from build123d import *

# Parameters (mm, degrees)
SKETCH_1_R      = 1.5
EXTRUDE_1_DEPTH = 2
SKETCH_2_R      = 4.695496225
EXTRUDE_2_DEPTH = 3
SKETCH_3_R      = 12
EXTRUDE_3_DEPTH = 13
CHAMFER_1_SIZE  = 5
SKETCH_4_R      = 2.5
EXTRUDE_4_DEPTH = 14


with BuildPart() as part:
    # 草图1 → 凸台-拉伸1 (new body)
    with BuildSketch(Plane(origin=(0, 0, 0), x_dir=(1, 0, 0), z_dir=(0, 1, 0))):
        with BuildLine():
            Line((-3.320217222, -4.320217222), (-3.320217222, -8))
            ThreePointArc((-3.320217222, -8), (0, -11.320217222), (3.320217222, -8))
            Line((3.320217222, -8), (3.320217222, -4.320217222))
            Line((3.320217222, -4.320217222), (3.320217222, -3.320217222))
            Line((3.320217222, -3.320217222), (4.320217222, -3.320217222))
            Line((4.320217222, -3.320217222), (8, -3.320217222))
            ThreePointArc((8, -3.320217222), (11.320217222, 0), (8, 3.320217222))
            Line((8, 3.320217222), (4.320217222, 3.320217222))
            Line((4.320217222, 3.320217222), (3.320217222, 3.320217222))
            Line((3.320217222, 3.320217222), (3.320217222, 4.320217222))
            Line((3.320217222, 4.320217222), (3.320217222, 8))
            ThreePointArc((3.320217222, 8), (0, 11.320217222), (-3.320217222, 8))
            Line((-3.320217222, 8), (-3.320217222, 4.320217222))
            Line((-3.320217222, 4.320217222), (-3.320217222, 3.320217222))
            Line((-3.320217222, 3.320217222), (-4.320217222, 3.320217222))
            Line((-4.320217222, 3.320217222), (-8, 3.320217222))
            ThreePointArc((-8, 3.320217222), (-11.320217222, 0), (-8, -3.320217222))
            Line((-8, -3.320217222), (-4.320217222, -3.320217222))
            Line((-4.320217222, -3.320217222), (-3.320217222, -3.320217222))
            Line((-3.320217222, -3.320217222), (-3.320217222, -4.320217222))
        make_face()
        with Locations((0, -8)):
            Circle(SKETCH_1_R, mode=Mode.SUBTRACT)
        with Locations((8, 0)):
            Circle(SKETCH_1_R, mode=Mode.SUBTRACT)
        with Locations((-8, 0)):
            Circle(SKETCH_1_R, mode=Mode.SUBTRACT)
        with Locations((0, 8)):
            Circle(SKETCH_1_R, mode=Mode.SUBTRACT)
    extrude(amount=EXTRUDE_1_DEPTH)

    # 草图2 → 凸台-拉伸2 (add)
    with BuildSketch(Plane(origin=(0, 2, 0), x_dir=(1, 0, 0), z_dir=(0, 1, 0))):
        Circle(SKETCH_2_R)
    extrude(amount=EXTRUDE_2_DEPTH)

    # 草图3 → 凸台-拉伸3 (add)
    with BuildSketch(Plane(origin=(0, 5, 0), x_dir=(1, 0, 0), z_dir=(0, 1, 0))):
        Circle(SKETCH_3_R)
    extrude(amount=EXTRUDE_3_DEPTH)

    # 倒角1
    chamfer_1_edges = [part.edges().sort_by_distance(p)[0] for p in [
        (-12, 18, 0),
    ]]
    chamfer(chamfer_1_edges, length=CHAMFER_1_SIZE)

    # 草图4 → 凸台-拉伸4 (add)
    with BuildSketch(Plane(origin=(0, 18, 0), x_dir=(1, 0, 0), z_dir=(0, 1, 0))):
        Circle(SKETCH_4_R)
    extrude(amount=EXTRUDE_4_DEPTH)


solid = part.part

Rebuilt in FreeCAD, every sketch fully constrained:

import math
import FreeCAD as App
import Part
import Sketcher

V = App.Vector
Q = App.Units.Quantity


def edges_at(feature, points):
    """Names of the edges that pass closest to the given points."""
    edges = feature.Shape.Edges
    near = lambda p: min(range(len(edges)), key=lambda i: edges[i].distToShape(Part.Vertex(*p))[0])
    return sorted({f"Edge{near(p) + 1}" for p in points})

doc = App.newDocument("Part")
params = doc.addObject("Spreadsheet::Sheet", "Params")
for row, (alias, value) in enumerate([
    ("sketch1_diameter", "3 mm"),
    ("pad1_length", "2 mm"),
    ("pad2_length", "3 mm"),
    ("sketch3_diameter", "24 mm"),
    ("pad3_length", "13 mm"),
    ("chamfer_size", "5 mm"),
    ("sketch4_diameter", "5 mm"),
    ("pad4_length", "14 mm"),
], start=1):
    params.set(f"A{row}", alias)
    params.set(f"B{row}", "=" + value)
    params.setAlias(f"B{row}", alias)

body = doc.addObject("PartDesign::Body", "Body")

# Sketch on XZ plane
sketch1 = body.newObject("Sketcher::SketchObject", "Sketch")
sketch1.AttachmentSupport = (doc.getObject("XZ_Plane"), [""])
sketch1.MapMode = "FlatFace"
sketch1.addGeometry(Part.ArcOfCircle(Part.Circle(V(0, 8, 0), V(0, 0, 1), 3.3), math.radians(0), math.radians(180)), False)
sketch1.addGeometry(Part.LineSegment(V(3.3, 8, 0), V(3.3, 3.3, 0)), False)
sketch1.addGeometry(Part.LineSegment(V(3.3, 3.3, 0), V(8, 3.3, 0)), False)
sketch1.addGeometry(Part.ArcOfCircle(Part.Circle(V(8, 0, 0), V(0, 0, 1), 3.3), math.radians(-90), math.radians(90)), False)
sketch1.addGeometry(Part.LineSegment(V(8, -3.3, 0), V(3.3, -3.3, 0)), False)
sketch1.addGeometry(Part.LineSegment(V(3.3, -3.3, 0), V(3.3, -8, 0)), False)
sketch1.addGeometry(Part.ArcOfCircle(Part.Circle(V(0, -8, 0), V(0, 0, 1), 3.3), math.radians(180), math.radians(360)), False)
sketch1.addGeometry(Part.LineSegment(V(-3.3, -8, 0), V(-3.3, -3.3, 0)), False)
sketch1.addGeometry(Part.LineSegment(V(-3.3, -3.3, 0), V(-8, -3.3, 0)), False)
sketch1.addGeometry(Part.ArcOfCircle(Part.Circle(V(-8, 0, 0), V(0, 0, 1), 3.3), math.radians(90), math.radians(270)), False)
sketch1.addGeometry(Part.LineSegment(V(-8, 3.3, 0), V(-3.3, 3.3, 0)), False)
sketch1.addGeometry(Part.LineSegment(V(-3.3, 3.3, 0), V(-3.3, 8, 0)), False)
sketch1.addGeometry(Part.Circle(V(0, 8, 0), V(0, 0, 1), 1.5), False)
sketch1.addGeometry(Part.Circle(V(-8, 0, 0), V(0, 0, 1), 1.5), False)
sketch1.addGeometry(Part.Circle(V(8, 0, 0), V(0, 0, 1), 1.5), False)
sketch1.addGeometry(Part.Circle(V(0, -8, 0), V(0, 0, 1), 1.5), False)
sketch1.addConstraint(Sketcher.Constraint("Tangent", 0, 1, 1, 1))
sketch1.addConstraint(Sketcher.Constraint("Coincident", 1, 2, 2, 1))
sketch1.addConstraint(Sketcher.Constraint("Tangent", 2, 2, 3, 2))
sketch1.addConstraint(Sketcher.Constraint("Tangent", 3, 1, 4, 1))
sketch1.addConstraint(Sketcher.Constraint("Coincident", 4, 2, 5, 1))
sketch1.addConstraint(Sketcher.Constraint("Tangent", 5, 2, 6, 2))
sketch1.addConstraint(Sketcher.Constraint("Tangent", 6, 1, 7, 1))
sketch1.addConstraint(Sketcher.Constraint("Coincident", 7, 2, 8, 1))
sketch1.addConstraint(Sketcher.Constraint("Tangent", 8, 2, 9, 2))
sketch1.addConstraint(Sketcher.Constraint("Tangent", 9, 1, 10, 1))
sketch1.addConstraint(Sketcher.Constraint("Coincident", 10, 2, 11, 1))
sketch1.addConstraint(Sketcher.Constraint("Tangent", 11, 2, 0, 2))
sketch1.addConstraint(Sketcher.Constraint("Vertical", 1))
sketch1.addConstraint(Sketcher.Constraint("Horizontal", 2))
sketch1.addConstraint(Sketcher.Constraint("Horizontal", 4))
sketch1.addConstraint(Sketcher.Constraint("Vertical", 5))
sketch1.addConstraint(Sketcher.Constraint("Vertical", 7))
sketch1.addConstraint(Sketcher.Constraint("Horizontal", 8))
sketch1.addConstraint(Sketcher.Constraint("Horizontal", 10))
sketch1.addConstraint(Sketcher.Constraint("Vertical", 11))
sketch1.addConstraint(Sketcher.Constraint("Coincident", 12, 3, 0, 3))
sketch1.addConstraint(Sketcher.Constraint("Coincident", 13, 3, 9, 3))
sketch1.addConstraint(Sketcher.Constraint("Coincident", 14, 3, 3, 3))
sketch1.addConstraint(Sketcher.Constraint("Coincident", 15, 3, 6, 3))
sketch1.addConstraint(Sketcher.Constraint("Equal", 0, 3))
sketch1.addConstraint(Sketcher.Constraint("Equal", 3, 6))
sketch1.addConstraint(Sketcher.Constraint("Equal", 6, 9))
sketch1.addConstraint(Sketcher.Constraint("Equal", 12, 13))
sketch1.addConstraint(Sketcher.Constraint("Equal", 13, 14))
sketch1.addConstraint(Sketcher.Constraint("Equal", 14, 15))
sketch1.addConstraint(Sketcher.Constraint("Symmetric", 0, 3, 6, 3, -1, 1))
sketch1.addConstraint(Sketcher.Constraint("Symmetric", 3, 3, 9, 3, -1, 1))
sketch1.addConstraint(Sketcher.Constraint("Symmetric", 4, 2, 7, 2, -2))
sketch1.addConstraint(Sketcher.Constraint("Equal", 10, 1))
sketch1.addConstraint(Sketcher.Constraint("Diameter", 12, Q("3 mm")))
sketch1.addConstraint(Sketcher.Constraint("DistanceY", -1, 1, 0, 3, Q("8 mm")))
sketch1.addConstraint(Sketcher.Constraint("Radius", 0, Q("3.320217 mm")))
sketch1.setExpression("Constraints[34]", "Params.sketch1_diameter")
pad1 = body.newObject("PartDesign::Pad", "Pad")
pad1.Profile = sketch1
pad1.setExpression("Length", "Params.pad1_length")
pad1.Reversed = True

# Sketch on XZ plane
sketch2 = body.newObject("Sketcher::SketchObject", "Sketch001")
sketch2.AttachmentSupport = (doc.getObject("XZ_Plane"), [""])
sketch2.MapMode = "FlatFace"
sketch2.AttachmentOffset = App.Placement(V(0, 0, -2), App.Rotation())
sketch2.addGeometry(Part.Circle(V(0, 0, 0), V(0, 0, 1), 4.7), False)
sketch2.addConstraint(Sketcher.Constraint("Coincident", 0, 3, -1, 1))
sketch2.addConstraint(Sketcher.Constraint("Diameter", 0, Q("9.390992 mm")))
pad2 = body.newObject("PartDesign::Pad", "Pad001")
pad2.Profile = sketch2
pad2.setExpression("Length", "Params.pad2_length")
pad2.Reversed = True

# Sketch on XZ plane
sketch3 = body.newObject("Sketcher::SketchObject", "Sketch002")
sketch3.AttachmentSupport = (doc.getObject("XZ_Plane"), [""])
sketch3.MapMode = "FlatFace"
sketch3.AttachmentOffset = App.Placement(V(0, 0, -5), App.Rotation())
sketch3.addGeometry(Part.Circle(V(0, 0, 0), V(0, 0, 1), 12), False)
sketch3.addConstraint(Sketcher.Constraint("Coincident", 0, 3, -1, 1))
sketch3.addConstraint(Sketcher.Constraint("Diameter", 0, Q("24 mm")))
sketch3.setExpression("Constraints[1]", "Params.sketch3_diameter")
pad3 = body.newObject("PartDesign::Pad", "Pad002")
pad3.Profile = sketch3
pad3.setExpression("Length", "Params.pad3_length")
pad3.Reversed = True
doc.recompute()

chamfer = body.newObject("PartDesign::Chamfer", "Chamfer")
chamfer.Base = (pad3, edges_at(pad3, [(-12, 18, 0)]))
chamfer.setExpression("Size", "Params.chamfer_size")

# Sketch on XZ plane
sketch4 = body.newObject("Sketcher::SketchObject", "Sketch003")
sketch4.AttachmentSupport = (doc.getObject("XZ_Plane"), [""])
sketch4.MapMode = "FlatFace"
sketch4.AttachmentOffset = App.Placement(V(0, 0, -18), App.Rotation())
sketch4.addGeometry(Part.Circle(V(0, 0, 0), V(0, 0, 1), 2.5), False)
sketch4.addConstraint(Sketcher.Constraint("Coincident", 0, 3, -1, 1))
sketch4.addConstraint(Sketcher.Constraint("Diameter", 0, Q("5 mm")))
sketch4.setExpression("Constraints[1]", "Params.sketch4_diameter")
pad4 = body.newObject("PartDesign::Pad", "Pad003")
pad4.Profile = sketch4
pad4.setExpression("Length", "Params.pad4_length")
pad4.Reversed = True

doc.recompute()
